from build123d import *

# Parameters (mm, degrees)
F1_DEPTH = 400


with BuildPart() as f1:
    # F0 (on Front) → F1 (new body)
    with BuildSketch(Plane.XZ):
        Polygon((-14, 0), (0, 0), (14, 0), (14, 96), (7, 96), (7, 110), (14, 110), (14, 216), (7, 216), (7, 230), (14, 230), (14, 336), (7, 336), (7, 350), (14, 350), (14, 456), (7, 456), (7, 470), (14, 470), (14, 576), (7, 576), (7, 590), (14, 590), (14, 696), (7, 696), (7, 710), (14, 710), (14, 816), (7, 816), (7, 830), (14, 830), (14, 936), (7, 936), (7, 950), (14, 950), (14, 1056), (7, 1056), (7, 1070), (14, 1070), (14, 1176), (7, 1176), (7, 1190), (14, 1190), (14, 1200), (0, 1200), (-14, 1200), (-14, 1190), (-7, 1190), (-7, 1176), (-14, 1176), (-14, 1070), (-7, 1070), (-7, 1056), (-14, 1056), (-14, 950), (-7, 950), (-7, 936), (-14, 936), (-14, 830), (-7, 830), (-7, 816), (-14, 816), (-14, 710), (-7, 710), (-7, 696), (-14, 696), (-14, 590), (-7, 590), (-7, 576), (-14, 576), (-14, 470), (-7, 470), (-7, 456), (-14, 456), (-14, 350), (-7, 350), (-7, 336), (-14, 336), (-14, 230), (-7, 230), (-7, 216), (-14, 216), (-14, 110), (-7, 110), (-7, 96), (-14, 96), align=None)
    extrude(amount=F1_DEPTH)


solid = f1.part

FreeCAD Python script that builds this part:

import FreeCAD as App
import Part
import Sketcher

doc = App.newDocument("Part")
body = doc.addObject("PartDesign::Body", "Body")

# Sketch on XZ plane
sketch1 = body.newObject("Sketcher::SketchObject", "Sketch")
sketch1.AttachmentSupport = (doc.getObject("XZ_Plane"), [""])
sketch1.MapMode = "FlatFace"
sketch1.addGeometry(Part.LineSegment(App.Vector(-14, 0, 0), App.Vector(14, 0, 0)), False)
sketch1.addGeometry(Part.LineSegment(App.Vector(14, 0, 0), App.Vector(14, 96, 0)), False)
sketch1.addGeometry(Part.LineSegment(App.Vector(14, 96, 0), App.Vector(7, 96, 0)), False)
sketch1.addGeometry(Part.LineSegment(App.Vector(7, 96, 0), App.Vector(7, 110, 0)), False)
sketch1.addGeometry(Part.LineSegment(App.Vector(7, 110, 0), App.Vector(14, 110, 0)), False)
sketch1.addGeometry(Part.LineSegment(App.Vector(14, 110, 0), App.Vector(14, 216, 0)), False)
sketch1.addGeometry(Part.LineSegment(App.Vector(14, 216, 0), App.Vector(7, 216, 0)), False)
sketch1.addGeometry(Part.LineSegment(App.Vector(7, 216, 0), App.Vector(7, 230, 0)), False)
sketch1.addGeometry(Part.LineSegment(App.Vector(7, 230, 0), App.Vector(14, 230, 0)), False)
sketch1.addGeometry(Part.LineSegment(App.Vector(14, 230, 0), App.Vector(14, 336, 0)), False)
sketch1.addGeometry(Part.LineSegment(App.Vector(14, 336, 0), App.Vector(7, 336, 0)), False)
sketch1.addGeometry(Part.LineSegment(App.Vector(7, 336, 0), App.Vector(7, 350, 0)), False)
sketch1.addGeometry(Part.LineSegment(App.Vector(7, 350, 0), App.Vector(14, 350, 0)), False)
sketch1.addGeometry(Part.LineSegment(App.Vector(14, 350, 0), App.Vector(14, 456, 0)), False)
sketch1.addGeometry(Part.LineSegment(App.Vector(14, 456, 0), App.Vector(7, 456, 0)), False)
sketch1.addGeometry(Part.LineSegment(App.Vector(7, 456, 0), App.Vector(7, 470, 0)), False)
sketch1.addGeometry(Part.LineSegment(App.Vector(7, 470, 0), App.Vector(14, 470, 0)), False)
sketch1.addGeometry(Part.LineSegment(App.Vector(14, 470, 0), App.Vector(14, 576, 0)), False)
sketch1.addGeometry(Part.LineSegment(App.Vector(14, 576, 0), App.Vector(7, 576, 0)), False)
sketch1.addGeometry(Part.LineSegment(App.Vector(7, 576, 0), App.Vector(7, 590, 0)), False)
sketch1.addGeometry(Part.LineSegment(App.Vector(7, 590, 0), App.Vector(14, 590, 0)), False)
sketch1.addGeometry(Part.LineSegment(App.Vector(14, 590, 0), App.Vector(14, 696, 0)), False)
sketch1.addGeometry(Part.LineSegment(App.Vector(14, 696, 0), App.Vector(7, 696, 0)), False)
sketch1.addGeometry(Part.LineSegment(App.Vector(7, 696, 0), App.Vector(7, 710, 0)), False)
sketch1.addGeometry(Part.LineSegment(App.Vector(7, 710, 0), App.Vector(14, 710, 0)), False)
sketch1.addGeometry(Part.LineSegment(App.Vector(14, 710, 0), App.Vector(14, 816, 0)), False)
sketch1.addGeometry(Part.LineSegment(App.Vector(14, 816, 0), App.Vector(7, 816, 0)), False)
sketch1.addGeometry(Part.LineSegment(App.Vector(7, 816, 0), App.Vector(7, 830, 0)), False)
sketch1.addGeometry(Part.LineSegment(App.Vector(7, 830, 0), App.Vector(14, 830, 0)), False)
sketch1.addGeometry(Part.LineSegment(App.Vector(14, 830, 0), App.Vector(14, 936, 0)), False)
sketch1.addGeometry(Part.LineSegment(App.Vector(14, 936, 0), App.Vector(7, 936, 0)), False)
sketch1.addGeometry(Part.LineSegment(App.Vector(7, 936, 0), App.Vector(7, 950, 0)), False)
sketch1.addGeometry(Part.LineSegment(App.Vector(7, 950, 0), App.Vector(14, 950, 0)), False)
sketch1.addGeometry(Part.LineSegment(App.Vector(14, 950, 0), App.Vector(14, 1056, 0)), False)
sketch1.addGeometry(Part.LineSegment(App.Vector(14, 1056, 0), App.Vector(7, 1056, 0)), False)
sketch1.addGeometry(Part.LineSegment(App.Vector(7, 1056, 0), App.Vector(7, 1070, 0)), False)
sketch1.addGeometry(Part.LineSegment(App.Vector(7, 1070, 0), App.Vector(14, 1070, 0)), False)
sketch1.addGeometry(Part.LineSegment(App.Vector(14, 1070, 0), App.Vector(14, 1176, 0)), False)
sketch1.addGeometry(Part.LineSegment(App.Vector(14, 1176, 0), App.Vector(7, 1176, 0)), False)
sketch1.addGeometry(Part.LineSegment(App.Vector(7, 1176, 0), App.Vector(7, 1190, 0)), False)
sketch1.addGeometry(Part.LineSegment(App.Vector(7, 1190, 0), App.Vector(14, 1190, 0)), False)
sketch1.addGeometry(Part.LineSegment(App.Vector(14, 1190, 0), App.Vector(14, 1200, 0)), False)
sketch1.addGeometry(Part.LineSegment(App.Vector(14, 1200, 0), App.Vector(-14, 1200, 0)), False)
sketch1.addGeometry(Part.LineSegment(App.Vector(-14, 1200, 0), App.Vector(-14, 1190, 0)), False)
sketch1.addGeometry(Part.LineSegment(App.Vector(-14, 1190, 0), App.Vector(-7, 1190, 0)), False)
sketch1.addGeometry(Part.LineSegment(App.Vector(-7, 1190, 0), App.Vector(-7, 1176, 0)), False)
sketch1.addGeometry(Part.LineSegment(App.Vector(-7, 1176, 0), App.Vector(-14, 1176, 0)), False)
sketch1.addGeometry(Part.LineSegment(App.Vector(-14, 1176, 0), App.Vector(-14, 1070, 0)), False)
sketch1.addGeometry(Part.LineSegment(App.Vector(-14, 1070, 0), App.Vector(-7, 1070, 0)), False)
sketch1.addGeometry(Part.LineSegment(App.Vector(-7, 1070, 0), App.Vector(-7, 1056, 0)), False)
sketch1.addGeometry(Part.LineSegment(App.Vector(-7, 1056, 0), App.Vector(-14, 1056, 0)), False)
sketch1.addGeometry(Part.LineSegment(App.Vector(-14, 1056, 0), App.Vector(-14, 950, 0)), False)
sketch1.addGeometry(Part.LineSegment(App.Vector(-14, 950, 0), App.Vector(-7, 950, 0)), False)
sketch1.addGeometry(Part.LineSegment(App.Vector(-7, 950, 0), App.Vector(-7, 936, 0)), False)
sketch1.addGeometry(Part.LineSegment(App.Vector(-7, 936, 0), App.Vector(-14, 936, 0)), False)
sketch1.addGeometry(Part.LineSegment(App.Vector(-14, 936, 0), App.Vector(-14, 830, 0)), False)
sketch1.addGeometry(Part.LineSegment(App.Vector(-14, 830, 0), App.Vector(-7, 830, 0)), False)
sketch1.addGeometry(Part.LineSegment(App.Vector(-7, 830, 0), App.Vector(-7, 816, 0)), False)
sketch1.addGeometry(Part.LineSegment(App.Vector(-7, 816, 0), App.Vector(-14, 816, 0)), False)
sketch1.addGeometry(Part.LineSegment(App.Vector(-14, 816, 0), App.Vector(-14, 710, 0)), False)
sketch1.addGeometry(Part.LineSegment(App.Vector(-14, 710, 0), App.Vector(-7, 710, 0)), False)
sketch1.addGeometry(Part.LineSegment(App.Vector(-7, 710, 0), App.Vector(-7, 696, 0)), False)
sketch1.addGeometry(Part.LineSegment(App.Vector(-7, 696, 0), App.Vector(-14, 696, 0)), False)
sketch1.addGeometry(Part.LineSegment(App.Vector(-14, 696, 0), App.Vector(-14, 590, 0)), False)
sketch1.addGeometry(Part.LineSegment(App.Vector(-14, 590, 0), App.Vector(-7, 590, 0)), False)
sketch1.addGeometry(Part.LineSegment(App.Vector(-7, 590, 0), App.Vector(-7, 576, 0)), False)
sketch1.addGeometry(Part.LineSegment(App.Vector(-7, 576, 0), App.Vector(-14, 576, 0)), False)
sketch1.addGeometry(Part.LineSegment(App.Vector(-14, 576, 0), App.Vector(-14, 470, 0)), False)
sketch1.addGeometry(Part.LineSegment(App.Vector(-14, 470, 0), App.Vector(-7, 470, 0)), False)
sketch1.addGeometry(Part.LineSegment(App.Vector(-7, 470, 0), App.Vector(-7, 456, 0)), False)
sketch1.addGeometry(Part.LineSegment(App.Vector(-7, 456, 0), App.Vector(-14, 456, 0)), False)
sketch1.addGeometry(Part.LineSegment(App.Vector(-14, 456, 0), App.Vector(-14, 350, 0)), False)
sketch1.addGeometry(Part.LineSegment(App.Vector(-14, 350, 0), App.Vector(-7, 350, 0)), False)
sketch1.addGeometry(Part.LineSegment(App.Vector(-7, 350, 0), App.Vector(-7, 336, 0)), False)
sketch1.addGeometry(Part.LineSegment(App.Vector(-7, 336, 0), App.Vector(-14, 336, 0)), False)
sketch1.addGeometry(Part.LineSegment(App.Vector(-14, 336, 0), App.Vector(-14, 230, 0)), False)
sketch1.addGeometry(Part.LineSegment(App.Vector(-14, 230, 0), App.Vector(-7, 230, 0)), False)
sketch1.addGeometry(Part.LineSegment(App.Vector(-7, 230, 0), App.Vector(-7, 216, 0)), False)
sketch1.addGeometry(Part.LineSegment(App.Vector(-7, 216, 0), App.Vector(-14, 216, 0)), False)
sketch1.addGeometry(Part.LineSegment(App.Vector(-14, 216, 0), App.Vector(-14, 110, 0)), False)
sketch1.addGeometry(Part.LineSegment(App.Vector(-14, 110, 0), App.Vector(-7, 110, 0)), False)
sketch1.addGeometry(Part.LineSegment(App.Vector(-7, 110, 0), App.Vector(-7, 96, 0)), False)
sketch1.addGeometry(Part.LineSegment(App.Vector(-7, 96, 0), App.Vector(-14, 96, 0)), False)
sketch1.addGeometry(Part.LineSegment(App.Vector(-14, 96, 0), App.Vector(-14, 0, 0)), False)
sketch1.addConstraint(Sketcher.Constraint("Coincident", 0, 2, 1, 1))
sketch1.addConstraint(Sketcher.Constraint("Coincident", 1, 2, 2, 1))
sketch1.addConstraint(Sketcher.Constraint("Coincident", 2, 2, 3, 1))
sketch1.addConstraint(Sketcher.Constraint("Coincident", 3, 2, 4, 1))
sketch1.addConstraint(Sketcher.Constraint("Coincident", 4, 2, 5, 1))
sketch1.addConstraint(Sketcher.Constraint("Coincident", 5, 2, 6, 1))
sketch1.addConstraint(Sketcher.Constraint("Coincident", 6, 2, 7, 1))
sketch1.addConstraint(Sketcher.Constraint("Coincident", 7, 2, 8, 1))
sketch1.addConstraint(Sketcher.Constraint("Coincident", 8, 2, 9, 1))
sketch1.addConstraint(Sketcher.Constraint("Coincident", 9, 2, 10, 1))
sketch1.addConstraint(Sketcher.Constraint("Coincident", 10, 2, 11, 1))
sketch1.addConstraint(Sketcher.Constraint("Coincident", 11, 2, 12, 1))
sketch1.addConstraint(Sketcher.Constraint("Coincident", 12, 2, 13, 1))
sketch1.addConstraint(Sketcher.Constraint("Coincident", 13, 2, 14, 1))
sketch1.addConstraint(Sketcher.Constraint("Coincident", 14, 2, 15, 1))
sketch1.addConstraint(Sketcher.Constraint("Coincident", 15, 2, 16, 1))
sketch1.addConstraint(Sketcher.Constraint("Coincident", 16, 2, 17, 1))
sketch1.addConstraint(Sketcher.Constraint("Coincident", 17, 2, 18, 1))
sketch1.addConstraint(Sketcher.Constraint("Coincident", 18, 2, 19, 1))
sketch1.addConstraint(Sketcher.Constraint("Coincident", 19, 2, 20, 1))
sketch1.addConstraint(Sketcher.Constraint("Coincident", 20, 2, 21, 1))
sketch1.addConstraint(Sketcher.Constraint("Coincident", 21, 2, 22, 1))
sketch1.addConstraint(Sketcher.Constraint("Coincident", 22, 2, 23, 1))
sketch1.addConstraint(Sketcher.Constraint("Coincident", 23, 2, 24, 1))
sketch1.addConstraint(Sketcher.Constraint("Coincident", 24, 2, 25, 1))
sketch1.addConstraint(Sketcher.Constraint("Coincident", 25, 2, 26, 1))
sketch1.addConstraint(Sketcher.Constraint("Coincident", 26, 2, 27, 1))
sketch1.addConstraint(Sketcher.Constraint("Coincident", 27, 2, 28, 1))
sketch1.addConstraint(Sketcher.Constraint("Coincident", 28, 2, 29, 1))
sketch1.addConstraint(Sketcher.Constraint("Coincident", 29, 2, 30, 1))
sketch1.addConstraint(Sketcher.Constraint("Coincident", 30, 2, 31, 1))
sketch1.addConstraint(Sketcher.Constraint("Coincident", 31, 2, 32, 1))
sketch1.addConstraint(Sketcher.Constraint("Coincident", 32, 2, 33, 1))
sketch1.addConstraint(Sketcher.Constraint("Coincident", 33, 2, 34, 1))
sketch1.addConstraint(Sketcher.Constraint("Coincident", 34, 2, 35, 1))
sketch1.addConstraint(Sketcher.Constraint("Coincident", 35, 2, 36, 1))
sketch1.addConstraint(Sketcher.Constraint("Coincident", 36, 2, 37, 1))
sketch1.addConstraint(Sketcher.Constraint("Coincident", 37, 2, 38, 1))
sketch1.addConstraint(Sketcher.Constraint("Coincident", 38, 2, 39, 1))
sketch1.addConstraint(Sketcher.Constraint("Coincident", 39, 2, 40, 1))
sketch1.addConstraint(Sketcher.Constraint("Coincident", 40, 2, 41, 1))
sketch1.addConstraint(Sketcher.Constraint("Coincident", 41, 2, 42, 1))
sketch1.addConstraint(Sketcher.Constraint("Coincident", 42, 2, 43, 1))
sketch1.addConstraint(Sketcher.Constraint("Coincident", 43, 2, 44, 1))
sketch1.addConstraint(Sketcher.Constraint("Coincident", 44, 2, 45, 1))
sketch1.addConstraint(Sketcher.Constraint("Coincident", 45, 2, 46, 1))
sketch1.addConstraint(Sketcher.Constraint("Coincident", 46, 2, 47, 1))
sketch1.addConstraint(Sketcher.Constraint("Coincident", 47, 2, 48, 1))
sketch1.addConstraint(Sketcher.Constraint("Coincident", 48, 2, 49, 1))
sketch1.addConstraint(Sketcher.Constraint("Coincident", 49, 2, 50, 1))
sketch1.addConstraint(Sketcher.Constraint("Coincident", 50, 2, 51, 1))
sketch1.addConstraint(Sketcher.Constraint("Coincident", 51, 2, 52, 1))
sketch1.addConstraint(Sketcher.Constraint("Coincident", 52, 2, 53, 1))
sketch1.addConstraint(Sketcher.Constraint("Coincident", 53, 2, 54, 1))
sketch1.addConstraint(Sketcher.Constraint("Coincident", 54, 2, 55, 1))
sketch1.addConstraint(Sketcher.Constraint("Coincident", 55, 2, 56, 1))
sketch1.addConstraint(Sketcher.Constraint("Coincident", 56, 2, 57, 1))
sketch1.addConstraint(Sketcher.Constraint("Coincident", 57, 2, 58, 1))
sketch1.addConstraint(Sketcher.Constraint("Coincident", 58, 2, 59, 1))
sketch1.addConstraint(Sketcher.Constraint("Coincident", 59, 2, 60, 1))
sketch1.addConstraint(Sketcher.Constraint("Coincident", 60, 2, 61, 1))
sketch1.addConstraint(Sketcher.Constraint("Coincident", 61, 2, 62, 1))
sketch1.addConstraint(Sketcher.Constraint("Coincident", 62, 2, 63, 1))
sketch1.addConstraint(Sketcher.Constraint("Coincident", 63, 2, 64, 1))
sketch1.addConstraint(Sketcher.Constraint("Coincident", 64, 2, 65, 1))
sketch1.addConstraint(Sketcher.Constraint("Coincident", 65, 2, 66, 1))
sketch1.addConstraint(Sketcher.Constraint("Coincident", 66, 2, 67, 1))
sketch1.addConstraint(Sketcher.Constraint("Coincident", 67, 2, 68, 1))
sketch1.addConstraint(Sketcher.Constraint("Coincident", 68, 2, 69, 1))
sketch1.addConstraint(Sketcher.Constraint("Coincident", 69, 2, 70, 1))
sketch1.addConstraint(Sketcher.Constraint("Coincident", 70, 2, 71, 1))
sketch1.addConstraint(Sketcher.Constraint("Coincident", 71, 2, 72, 1))
sketch1.addConstraint(Sketcher.Constraint("Coincident", 72, 2, 73, 1))
sketch1.addConstraint(Sketcher.Constraint("Coincident", 73, 2, 74, 1))
sketch1.addConstraint(Sketcher.Constraint("Coincident", 74, 2, 75, 1))
sketch1.addConstraint(Sketcher.Constraint("Coincident", 75, 2, 76, 1))
sketch1.addConstraint(Sketcher.Constraint("Coincident", 76, 2, 77, 1))
sketch1.addConstraint(Sketcher.Constraint("Coincident", 77, 2, 78, 1))
sketch1.addConstraint(Sketcher.Constraint("Coincident", 78, 2, 79, 1))
sketch1.addConstraint(Sketcher.Constraint("Coincident", 79, 2, 80, 1))
sketch1.addConstraint(Sketcher.Constraint("Coincident", 80, 2, 81, 1))
sketch1.addConstraint(Sketcher.Constraint("Coincident", 81, 2, 82, 1))
sketch1.addConstraint(Sketcher.Constraint("Coincident", 82, 2, 83, 1))
sketch1.addConstraint(Sketcher.Constraint("Coincident", 83, 2, 0, 1))
sketch1.addConstraint(Sketcher.Constraint("Horizontal", 0))
sketch1.addConstraint(Sketcher.Constraint("Vertical", 1))
sketch1.addConstraint(Sketcher.Constraint("Horizontal", 2))
sketch1.addConstraint(Sketcher.Constraint("Vertical", 3))
sketch1.addConstraint(Sketcher.Constraint("Horizontal", 4))
sketch1.addConstraint(Sketcher.Constraint("Vertical", 5))
sketch1.addConstraint(Sketcher.Constraint("Horizontal", 6))
sketch1.addConstraint(Sketcher.Constraint("Vertical", 7))
sketch1.addConstraint(Sketcher.Constraint("Horizontal", 8))
sketch1.addConstraint(Sketcher.Constraint("Vertical", 9))
sketch1.addConstraint(Sketcher.Constraint("Horizontal", 10))
sketch1.addConstraint(Sketcher.Constraint("Vertical", 11))
sketch1.addConstraint(Sketcher.Constraint("Horizontal", 12))
sketch1.addConstraint(Sketcher.Constraint("Vertical", 13))
sketch1.addConstraint(Sketcher.Constraint("Horizontal", 14))
sketch1.addConstraint(Sketcher.Constraint("Vertical", 15))
sketch1.addConstraint(Sketcher.Constraint("Horizontal", 16))
sketch1.addConstraint(Sketcher.Constraint("Vertical", 17))
sketch1.addConstraint(Sketcher.Constraint("Horizontal", 18))
sketch1.addConstraint(Sketcher.Constraint("Vertical", 19))
sketch1.addConstraint(Sketcher.Constraint("Horizontal", 20))
sketch1.addConstraint(Sketcher.Constraint("Vertical", 21))
sketch1.addConstraint(Sketcher.Constraint("Horizontal", 22))
sketch1.addConstraint(Sketcher.Constraint("Vertical", 23))
sketch1.addConstraint(Sketcher.Constraint("Horizontal", 24))
sketch1.addConstraint(Sketcher.Constraint("Vertical", 25))
sketch1.addConstraint(Sketcher.Constraint("Horizontal", 26))
sketch1.addConstraint(Sketcher.Constraint("Vertical", 27))
sketch1.addConstraint(Sketcher.Constraint("Horizontal", 28))
sketch1.addConstraint(Sketcher.Constraint("Vertical", 29))
sketch1.addConstraint(Sketcher.Constraint("Horizontal", 30))
sketch1.addConstraint(Sketcher.Constraint("Vertical", 31))
sketch1.addConstraint(Sketcher.Constraint("Horizontal", 32))
sketch1.addConstraint(Sketcher.Constraint("Vertical", 33))
sketch1.addConstraint(Sketcher.Constraint("Horizontal", 34))
sketch1.addConstraint(Sketcher.Constraint("Vertical", 35))
sketch1.addConstraint(Sketcher.Constraint("Horizontal", 36))
sketch1.addConstraint(Sketcher.Constraint("Vertical", 37))
sketch1.addConstraint(Sketcher.Constraint("Horizontal", 38))
sketch1.addConstraint(Sketcher.Constraint("Vertical", 39))
sketch1.addConstraint(Sketcher.Constraint("Horizontal", 40))
sketch1.addConstraint(Sketcher.Constraint("Vertical", 41))
sketch1.addConstraint(Sketcher.Constraint("Horizontal", 42))
sketch1.addConstraint(Sketcher.Constraint("Vertical", 43))
sketch1.addConstraint(Sketcher.Constraint("Horizontal", 44))
sketch1.addConstraint(Sketcher.Constraint("Vertical", 45))
sketch1.addConstraint(Sketcher.Constraint("Horizontal", 46))
sketch1.addConstraint(Sketcher.Constraint("Vertical", 47))
sketch1.addConstraint(Sketcher.Constraint("Horizontal", 48))
sketch1.addConstraint(Sketcher.Constraint("Vertical", 49))
sketch1.addConstraint(Sketcher.Constraint("Horizontal", 50))
sketch1.addConstraint(Sketcher.Constraint("Vertical", 51))
sketch1.addConstraint(Sketcher.Constraint("Horizontal", 52))
sketch1.addConstraint(Sketcher.Constraint("Vertical", 53))
sketch1.addConstraint(Sketcher.Constraint("Horizontal", 54))
sketch1.addConstraint(Sketcher.Constraint("Vertical", 55))
sketch1.addConstraint(Sketcher.Constraint("Horizontal", 56))
sketch1.addConstraint(Sketcher.Constraint("Vertical", 57))
sketch1.addConstraint(Sketcher.Constraint("Horizontal", 58))
sketch1.addConstraint(Sketcher.Constraint("Vertical", 59))
sketch1.addConstraint(Sketcher.Constraint("Horizontal", 60))
sketch1.addConstraint(Sketcher.Constraint("Vertical", 61))
sketch1.addConstraint(Sketcher.Constraint("Horizontal", 62))
sketch1.addConstraint(Sketcher.Constraint("Vertical", 63))
sketch1.addConstraint(Sketcher.Constraint("Horizontal", 64))
sketch1.addConstraint(Sketcher.Constraint("Vertical", 65))
sketch1.addConstraint(Sketcher.Constraint("Horizontal", 66))
sketch1.addConstraint(Sketcher.Constraint("Vertical", 67))
sketch1.addConstraint(Sketcher.Constraint("Horizontal", 68))
sketch1.addConstraint(Sketcher.Constraint("Vertical", 69))
sketch1.addConstraint(Sketcher.Constraint("Horizontal", 70))
sketch1.addConstraint(Sketcher.Constraint("Vertical", 71))
sketch1.addConstraint(Sketcher.Constraint("Horizontal", 72))
sketch1.addConstraint(Sketcher.Constraint("Vertical", 73))
sketch1.addConstraint(Sketcher.Constraint("Horizontal", 74))
sketch1.addConstraint(Sketcher.Constraint("Vertical", 75))
sketch1.addConstraint(Sketcher.Constraint("Horizontal", 76))
sketch1.addConstraint(Sketcher.Constraint("Vertical", 77))
sketch1.addConstraint(Sketcher.Constraint("Horizontal", 78))
sketch1.addConstraint(Sketcher.Constraint("Vertical", 79))
sketch1.addConstraint(Sketcher.Constraint("Horizontal", 80))
sketch1.addConstraint(Sketcher.Constraint("Vertical", 81))
sketch1.addConstraint(Sketcher.Constraint("Horizontal", 82))
sketch1.addConstraint(Sketcher.Constraint("Vertical", 83))
sketch1.addConstraint(Sketcher.Constraint("Symmetric", 0, 2, 83, 2, -1, 1))
sketch1.addConstraint(Sketcher.Constraint("Symmetric", 40, 2, 43, 2, -2))
sketch1.addConstraint(Sketcher.Constraint("Symmetric", 38, 2, 45, 2, -2))
sketch1.addConstraint(Sketcher.Constraint("Symmetric", 36, 2, 47, 2, -2))
sketch1.addConstraint(Sketcher.Constraint("Symmetric", 34, 2, 49, 2, -2))
sketch1.addConstraint(Sketcher.Constraint("Symmetric", 32, 2, 51, 2, -2))
sketch1.addConstraint(Sketcher.Constraint("Symmetric", 30, 2, 53, 2, -2))
sketch1.addConstraint(Sketcher.Constraint("Symmetric", 28, 2, 55, 2, -2))
sketch1.addConstraint(Sketcher.Constraint("Symmetric", 26, 2, 57, 2, -2))
sketch1.addConstraint(Sketcher.Constraint("Symmetric", 24, 2, 59, 2, -2))
sketch1.addConstraint(Sketcher.Constraint("Symmetric", 22, 2, 61, 2, -2))
sketch1.addConstraint(Sketcher.Constraint("Symmetric", 20, 2, 63, 2, -2))
sketch1.addConstraint(Sketcher.Constraint("Symmetric", 18, 2, 65, 2, -2))
sketch1.addConstraint(Sketcher.Constraint("Symmetric", 16, 2, 67, 2, -2))
sketch1.addConstraint(Sketcher.Constraint("Symmetric", 14, 2, 69, 2, -2))
sketch1.addConstraint(Sketcher.Constraint("Symmetric", 12, 2, 71, 2, -2))
sketch1.addConstraint(Sketcher.Constraint("Symmetric", 10, 2, 73, 2, -2))
sketch1.addConstraint(Sketcher.Constraint("Symmetric", 8, 2, 75, 2, -2))
sketch1.addConstraint(Sketcher.Constraint("Symmetric", 6, 2, 77, 2, -2))
sketch1.addConstraint(Sketcher.Constraint("Symmetric", 4, 2, 79, 2, -2))
sketch1.addConstraint(Sketcher.Constraint("Symmetric", 2, 2, 81, 2, -2))
sketch1.addConstraint(Sketcher.Constraint("Vertical", 1, 2, 4, 2))
sketch1.addConstraint(Sketcher.Constraint("Vertical", 3, 2, 6, 2))
sketch1.addConstraint(Sketcher.Constraint("Vertical", 5, 2, 8, 2))
sketch1.addConstraint(Sketcher.Constraint("Vertical", 7, 2, 10, 2))
sketch1.addConstraint(Sketcher.Constraint("Vertical", 9, 2, 12, 2))
sketch1.addConstraint(Sketcher.Constraint("Vertical", 11, 2, 14, 2))
sketch1.addConstraint(Sketcher.Constraint("Vertical", 13, 2, 16, 2))
sketch1.addConstraint(Sketcher.Constraint("Vertical", 15, 2, 18, 2))
sketch1.addConstraint(Sketcher.Constraint("Vertical", 17, 2, 20, 2))
sketch1.addConstraint(Sketcher.Constraint("Vertical", 19, 2, 22, 2))
sketch1.addConstraint(Sketcher.Constraint("Vertical", 21, 2, 24, 2))
sketch1.addConstraint(Sketcher.Constraint("Vertical", 23, 2, 26, 2))
sketch1.addConstraint(Sketcher.Constraint("Vertical", 25, 2, 28, 2))
sketch1.addConstraint(Sketcher.Constraint("Vertical", 27, 2, 30, 2))
sketch1.addConstraint(Sketcher.Constraint("Vertical", 29, 2, 32, 2))
sketch1.addConstraint(Sketcher.Constraint("Vertical", 31, 2, 34, 2))
sketch1.addConstraint(Sketcher.Constraint("Vertical", 33, 2, 36, 2))
sketch1.addConstraint(Sketcher.Constraint("Vertical", 35, 2, 38, 2))
sketch1.addConstraint(Sketcher.Constraint("Vertical", 37, 2, 40, 2))
sketch1.addConstraint(Sketcher.Constraint("Equal", 3, 7))
sketch1.addConstraint(Sketcher.Constraint("Equal", 5, 9))
sketch1.addConstraint(Sketcher.Constraint("Equal", 7, 11))
sketch1.addConstraint(Sketcher.Constraint("Equal", 9, 13))
sketch1.addConstraint(Sketcher.Constraint("Equal", 11, 15))
sketch1.addConstraint(Sketcher.Constraint("Equal", 13, 17))
sketch1.addConstraint(Sketcher.Constraint("Equal", 15, 19))
sketch1.addConstraint(Sketcher.Constraint("Equal", 17, 21))
sketch1.addConstraint(Sketcher.Constraint("Equal", 19, 23))
sketch1.addConstraint(Sketcher.Constraint("Equal", 21, 25))
sketch1.addConstraint(Sketcher.Constraint("Equal", 23, 27))
sketch1.addConstraint(Sketcher.Constraint("Equal", 25, 29))
sketch1.addConstraint(Sketcher.Constraint("Equal", 27, 31))
sketch1.addConstraint(Sketcher.Constraint("Equal", 29, 33))
sketch1.addConstraint(Sketcher.Constraint("Equal", 31, 35))
sketch1.addConstraint(Sketcher.Constraint("Equal", 33, 37))
sketch1.addConstraint(Sketcher.Constraint("Equal", 35, 39))
sketch1.addConstraint(Sketcher.Constraint("DistanceX", 0, 1, 0, 2, 28.0))
sketch1.addConstraint(Sketcher.Constraint("DistanceX", 2, 2, 2, 1, 7.0))
sketch1.addConstraint(Sketcher.Constraint("DistanceY", 1, 1, 1, 2, 96.0))
sketch1.addConstraint(Sketcher.Constraint("DistanceY", 3, 1, 3, 2, 14.0))
sketch1.addConstraint(Sketcher.Constraint("DistanceY", 5, 1, 5, 2, 106.0))
sketch1.addConstraint(Sketcher.Constraint("DistanceY", 41, 1, 41, 2, 10.0))
pad1 = body.newObject("PartDesign::Pad", "Pad")
pad1.Profile = sketch1
pad1.Length = 400

doc.recompute()
